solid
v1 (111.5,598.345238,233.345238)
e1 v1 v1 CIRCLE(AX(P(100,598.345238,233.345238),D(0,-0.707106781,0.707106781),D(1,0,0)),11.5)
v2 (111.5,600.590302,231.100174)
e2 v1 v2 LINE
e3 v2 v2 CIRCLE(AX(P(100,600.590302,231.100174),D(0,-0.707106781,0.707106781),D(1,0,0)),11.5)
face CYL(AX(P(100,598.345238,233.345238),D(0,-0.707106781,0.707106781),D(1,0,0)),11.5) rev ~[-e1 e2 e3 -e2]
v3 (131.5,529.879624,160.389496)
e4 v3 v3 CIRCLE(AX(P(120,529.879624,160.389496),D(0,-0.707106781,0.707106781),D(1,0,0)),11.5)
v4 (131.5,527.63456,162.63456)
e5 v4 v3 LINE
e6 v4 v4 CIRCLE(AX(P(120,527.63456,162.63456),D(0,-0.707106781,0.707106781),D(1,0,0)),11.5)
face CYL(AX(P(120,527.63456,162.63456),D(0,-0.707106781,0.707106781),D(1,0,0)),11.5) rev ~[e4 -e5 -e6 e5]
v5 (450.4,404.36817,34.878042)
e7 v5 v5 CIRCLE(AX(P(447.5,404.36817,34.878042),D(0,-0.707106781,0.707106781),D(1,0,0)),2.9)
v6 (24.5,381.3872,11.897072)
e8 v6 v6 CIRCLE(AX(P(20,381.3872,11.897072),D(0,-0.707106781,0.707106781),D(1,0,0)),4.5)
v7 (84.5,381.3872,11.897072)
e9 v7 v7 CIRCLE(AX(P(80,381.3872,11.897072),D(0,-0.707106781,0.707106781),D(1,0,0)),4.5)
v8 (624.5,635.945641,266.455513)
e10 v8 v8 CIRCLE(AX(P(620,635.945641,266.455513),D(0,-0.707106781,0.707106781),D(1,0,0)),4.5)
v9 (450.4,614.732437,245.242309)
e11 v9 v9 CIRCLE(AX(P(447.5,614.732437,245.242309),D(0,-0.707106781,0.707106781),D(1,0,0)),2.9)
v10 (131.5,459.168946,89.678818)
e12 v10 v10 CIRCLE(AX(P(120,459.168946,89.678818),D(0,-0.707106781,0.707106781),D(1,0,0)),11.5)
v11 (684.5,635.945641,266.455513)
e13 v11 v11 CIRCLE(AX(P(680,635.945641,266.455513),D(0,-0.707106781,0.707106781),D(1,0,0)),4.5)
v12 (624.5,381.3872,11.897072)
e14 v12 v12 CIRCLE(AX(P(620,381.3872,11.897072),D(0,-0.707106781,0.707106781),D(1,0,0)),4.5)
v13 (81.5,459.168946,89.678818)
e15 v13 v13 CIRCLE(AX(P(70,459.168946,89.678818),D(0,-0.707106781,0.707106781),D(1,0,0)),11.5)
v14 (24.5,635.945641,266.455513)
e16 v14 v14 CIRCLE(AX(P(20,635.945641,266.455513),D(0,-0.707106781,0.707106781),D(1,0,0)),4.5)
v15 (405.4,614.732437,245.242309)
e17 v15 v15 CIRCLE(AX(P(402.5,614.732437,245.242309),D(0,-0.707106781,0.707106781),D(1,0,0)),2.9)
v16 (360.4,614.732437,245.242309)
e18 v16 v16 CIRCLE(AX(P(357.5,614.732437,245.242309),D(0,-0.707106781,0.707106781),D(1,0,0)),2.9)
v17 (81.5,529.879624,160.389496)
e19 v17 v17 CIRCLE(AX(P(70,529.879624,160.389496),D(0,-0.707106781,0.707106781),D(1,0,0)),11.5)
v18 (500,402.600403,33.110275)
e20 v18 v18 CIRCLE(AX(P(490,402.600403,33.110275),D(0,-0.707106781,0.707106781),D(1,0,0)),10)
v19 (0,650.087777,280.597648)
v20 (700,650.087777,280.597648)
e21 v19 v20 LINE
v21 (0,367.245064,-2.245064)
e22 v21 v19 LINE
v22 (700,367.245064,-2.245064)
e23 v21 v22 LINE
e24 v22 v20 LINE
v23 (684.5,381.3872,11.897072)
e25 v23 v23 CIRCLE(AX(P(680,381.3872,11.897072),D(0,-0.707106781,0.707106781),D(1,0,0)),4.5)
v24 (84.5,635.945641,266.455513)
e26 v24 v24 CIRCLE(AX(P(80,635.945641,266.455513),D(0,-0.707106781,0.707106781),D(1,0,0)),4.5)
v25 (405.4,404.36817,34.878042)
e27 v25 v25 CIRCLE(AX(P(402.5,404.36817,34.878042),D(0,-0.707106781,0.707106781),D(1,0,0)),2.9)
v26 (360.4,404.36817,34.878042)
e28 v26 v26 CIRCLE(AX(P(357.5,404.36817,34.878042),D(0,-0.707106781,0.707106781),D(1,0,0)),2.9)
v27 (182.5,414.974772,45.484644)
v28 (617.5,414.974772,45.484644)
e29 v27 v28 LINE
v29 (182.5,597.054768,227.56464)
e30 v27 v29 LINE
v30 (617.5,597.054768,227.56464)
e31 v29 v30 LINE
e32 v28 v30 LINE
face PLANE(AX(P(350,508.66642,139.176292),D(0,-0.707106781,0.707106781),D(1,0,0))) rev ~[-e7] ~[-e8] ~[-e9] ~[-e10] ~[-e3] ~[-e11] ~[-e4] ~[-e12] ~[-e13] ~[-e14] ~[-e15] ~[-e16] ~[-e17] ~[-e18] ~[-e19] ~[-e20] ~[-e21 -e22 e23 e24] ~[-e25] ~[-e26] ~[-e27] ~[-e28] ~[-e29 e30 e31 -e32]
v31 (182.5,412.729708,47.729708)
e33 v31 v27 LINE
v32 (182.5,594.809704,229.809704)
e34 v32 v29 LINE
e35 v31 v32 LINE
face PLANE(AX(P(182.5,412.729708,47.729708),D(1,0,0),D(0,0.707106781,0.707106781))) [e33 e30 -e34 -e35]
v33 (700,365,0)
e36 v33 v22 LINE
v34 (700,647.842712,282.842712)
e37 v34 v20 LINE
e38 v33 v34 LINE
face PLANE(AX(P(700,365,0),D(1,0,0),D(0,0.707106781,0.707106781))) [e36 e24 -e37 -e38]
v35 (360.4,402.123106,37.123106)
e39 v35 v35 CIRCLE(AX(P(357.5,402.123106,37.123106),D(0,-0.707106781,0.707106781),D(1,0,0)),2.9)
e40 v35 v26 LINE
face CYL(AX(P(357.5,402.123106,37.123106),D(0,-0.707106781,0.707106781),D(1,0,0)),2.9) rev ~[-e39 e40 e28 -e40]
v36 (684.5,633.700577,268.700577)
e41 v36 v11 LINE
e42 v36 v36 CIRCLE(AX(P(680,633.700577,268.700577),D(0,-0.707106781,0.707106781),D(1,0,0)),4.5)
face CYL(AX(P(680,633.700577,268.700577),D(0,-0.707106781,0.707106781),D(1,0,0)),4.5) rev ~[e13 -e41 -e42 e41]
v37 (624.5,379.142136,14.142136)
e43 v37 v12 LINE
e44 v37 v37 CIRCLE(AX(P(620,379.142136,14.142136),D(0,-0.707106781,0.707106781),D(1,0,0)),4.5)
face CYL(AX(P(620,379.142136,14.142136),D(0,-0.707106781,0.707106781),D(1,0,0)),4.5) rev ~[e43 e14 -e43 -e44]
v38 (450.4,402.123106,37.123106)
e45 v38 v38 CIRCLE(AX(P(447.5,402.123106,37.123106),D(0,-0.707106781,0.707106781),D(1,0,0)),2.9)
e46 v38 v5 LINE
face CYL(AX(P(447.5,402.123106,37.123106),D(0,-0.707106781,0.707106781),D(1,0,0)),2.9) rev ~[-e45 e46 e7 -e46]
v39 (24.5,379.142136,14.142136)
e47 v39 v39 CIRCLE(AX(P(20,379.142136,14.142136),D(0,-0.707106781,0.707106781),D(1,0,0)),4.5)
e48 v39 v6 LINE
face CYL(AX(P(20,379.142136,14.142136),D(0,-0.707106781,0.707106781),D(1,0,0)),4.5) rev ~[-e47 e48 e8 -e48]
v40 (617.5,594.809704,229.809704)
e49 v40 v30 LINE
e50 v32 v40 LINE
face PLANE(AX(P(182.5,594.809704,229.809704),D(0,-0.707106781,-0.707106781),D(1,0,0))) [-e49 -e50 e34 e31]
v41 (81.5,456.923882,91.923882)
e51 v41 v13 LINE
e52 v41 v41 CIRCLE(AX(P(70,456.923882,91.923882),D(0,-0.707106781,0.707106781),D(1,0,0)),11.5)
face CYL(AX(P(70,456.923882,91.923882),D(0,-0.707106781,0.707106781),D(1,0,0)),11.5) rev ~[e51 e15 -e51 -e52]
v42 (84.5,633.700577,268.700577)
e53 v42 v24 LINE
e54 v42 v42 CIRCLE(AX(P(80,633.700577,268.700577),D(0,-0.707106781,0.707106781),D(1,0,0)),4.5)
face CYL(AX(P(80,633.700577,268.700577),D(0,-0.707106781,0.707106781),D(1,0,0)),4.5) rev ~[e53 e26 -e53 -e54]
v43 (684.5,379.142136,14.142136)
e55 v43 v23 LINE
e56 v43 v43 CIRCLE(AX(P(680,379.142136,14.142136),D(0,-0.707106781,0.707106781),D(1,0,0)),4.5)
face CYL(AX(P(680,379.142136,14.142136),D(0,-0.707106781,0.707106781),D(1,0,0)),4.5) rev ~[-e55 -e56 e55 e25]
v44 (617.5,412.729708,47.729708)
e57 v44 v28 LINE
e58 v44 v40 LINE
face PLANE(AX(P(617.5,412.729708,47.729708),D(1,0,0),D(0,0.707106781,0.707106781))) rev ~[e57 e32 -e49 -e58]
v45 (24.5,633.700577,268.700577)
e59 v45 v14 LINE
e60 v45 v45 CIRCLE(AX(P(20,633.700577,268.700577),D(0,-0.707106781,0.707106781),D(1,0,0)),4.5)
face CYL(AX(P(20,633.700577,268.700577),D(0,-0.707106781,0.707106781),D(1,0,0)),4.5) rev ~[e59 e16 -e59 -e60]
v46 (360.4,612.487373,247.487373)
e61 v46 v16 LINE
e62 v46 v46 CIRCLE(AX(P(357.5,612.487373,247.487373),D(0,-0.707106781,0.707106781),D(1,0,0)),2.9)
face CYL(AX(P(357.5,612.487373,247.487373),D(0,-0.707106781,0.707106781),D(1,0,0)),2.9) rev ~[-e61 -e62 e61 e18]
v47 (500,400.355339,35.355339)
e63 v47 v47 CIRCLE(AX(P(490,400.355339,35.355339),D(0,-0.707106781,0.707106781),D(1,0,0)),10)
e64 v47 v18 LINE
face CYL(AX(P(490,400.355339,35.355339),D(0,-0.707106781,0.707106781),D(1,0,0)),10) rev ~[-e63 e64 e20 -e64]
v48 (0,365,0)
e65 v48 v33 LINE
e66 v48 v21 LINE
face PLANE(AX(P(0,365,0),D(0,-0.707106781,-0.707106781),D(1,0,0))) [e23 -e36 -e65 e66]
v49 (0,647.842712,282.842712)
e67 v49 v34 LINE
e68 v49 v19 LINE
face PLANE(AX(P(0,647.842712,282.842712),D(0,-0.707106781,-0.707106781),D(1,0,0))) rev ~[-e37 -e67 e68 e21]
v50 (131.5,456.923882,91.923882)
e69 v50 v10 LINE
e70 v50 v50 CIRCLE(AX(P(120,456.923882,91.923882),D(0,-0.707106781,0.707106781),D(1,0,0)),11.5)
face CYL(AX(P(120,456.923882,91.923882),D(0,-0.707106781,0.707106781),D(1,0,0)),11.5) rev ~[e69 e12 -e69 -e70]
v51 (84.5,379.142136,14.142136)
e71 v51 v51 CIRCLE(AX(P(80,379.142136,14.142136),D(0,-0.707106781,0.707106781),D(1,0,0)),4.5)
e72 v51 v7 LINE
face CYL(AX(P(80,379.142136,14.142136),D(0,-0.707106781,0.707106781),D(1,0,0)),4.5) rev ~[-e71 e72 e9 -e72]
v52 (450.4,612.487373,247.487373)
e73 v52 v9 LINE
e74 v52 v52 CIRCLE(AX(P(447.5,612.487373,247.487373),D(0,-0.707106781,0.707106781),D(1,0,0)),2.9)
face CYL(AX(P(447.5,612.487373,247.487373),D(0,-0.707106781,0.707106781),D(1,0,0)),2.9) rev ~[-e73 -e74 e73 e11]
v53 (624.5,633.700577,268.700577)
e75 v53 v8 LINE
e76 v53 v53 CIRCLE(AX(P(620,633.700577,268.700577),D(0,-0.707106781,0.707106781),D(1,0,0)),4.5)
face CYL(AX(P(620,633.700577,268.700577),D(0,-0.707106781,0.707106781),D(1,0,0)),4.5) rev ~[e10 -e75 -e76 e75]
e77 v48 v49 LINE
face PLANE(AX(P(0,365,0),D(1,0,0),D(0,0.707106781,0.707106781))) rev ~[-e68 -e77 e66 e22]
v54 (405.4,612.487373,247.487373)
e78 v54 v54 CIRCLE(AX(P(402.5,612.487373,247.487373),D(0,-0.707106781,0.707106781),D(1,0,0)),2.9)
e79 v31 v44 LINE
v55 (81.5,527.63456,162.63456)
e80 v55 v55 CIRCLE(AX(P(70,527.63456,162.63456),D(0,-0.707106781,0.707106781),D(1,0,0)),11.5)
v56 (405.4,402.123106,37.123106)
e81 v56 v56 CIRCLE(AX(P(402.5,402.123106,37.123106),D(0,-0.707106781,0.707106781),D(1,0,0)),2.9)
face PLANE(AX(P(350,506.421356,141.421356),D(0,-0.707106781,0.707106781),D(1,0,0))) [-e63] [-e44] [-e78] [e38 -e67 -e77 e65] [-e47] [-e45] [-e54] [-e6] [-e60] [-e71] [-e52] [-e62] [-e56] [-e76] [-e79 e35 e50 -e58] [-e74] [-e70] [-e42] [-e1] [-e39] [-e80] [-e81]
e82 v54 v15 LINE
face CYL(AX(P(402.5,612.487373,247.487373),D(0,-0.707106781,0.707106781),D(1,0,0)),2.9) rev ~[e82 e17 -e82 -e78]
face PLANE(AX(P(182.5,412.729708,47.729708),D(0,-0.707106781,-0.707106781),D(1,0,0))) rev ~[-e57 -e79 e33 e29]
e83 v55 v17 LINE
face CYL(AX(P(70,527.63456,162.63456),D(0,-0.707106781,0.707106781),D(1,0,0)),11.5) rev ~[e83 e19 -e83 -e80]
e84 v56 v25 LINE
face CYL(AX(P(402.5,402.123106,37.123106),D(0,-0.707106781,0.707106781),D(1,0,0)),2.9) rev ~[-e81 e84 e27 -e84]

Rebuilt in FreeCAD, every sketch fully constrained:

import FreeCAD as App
import Part
import Sketcher

V = App.Vector
Q = App.Units.Quantity


def add_polygon(sketch, points):
    """Adds a closed chain of lines whose ends are joined by coincident constraints."""
    first, n = sketch.GeometryCount, len(points)
    for a, b in zip(points, points[1:] + points[:1]):
        sketch.addGeometry(Part.LineSegment(App.Vector(*a, 0), App.Vector(*b, 0)), False)
    for i in range(n):
        sketch.addConstraint(Sketcher.Constraint("Coincident", first + i, 2, first + (i + 1) % n, 1))

doc = App.newDocument("Part")
body = doc.addObject("PartDesign::Body", "Body")

# Sketch on XY plane
sketch1 = body.newObject("Sketcher::SketchObject", "Sketch")
sketch1.AttachmentSupport = (doc.getObject("XY_Plane"), [""])
sketch1.MapMode = "FlatFace"
add_polygon(sketch1, [(0, 400), (0, 0), (700, 0), (700, 400)])  # lines 0-3
sketch1.addGeometry(Part.Circle(V(70, 130, 0), V(0, 0, 1), 12), False)  # 4
sketch1.addGeometry(Part.Circle(V(120, 130, 0), V(0, 0, 1), 12), False)  # 5
sketch1.addGeometry(Part.Circle(V(490, 50, 0), V(0, 0, 1), 10), False)  # 6
sketch1.addGeometry(Part.Circle(V(70, 230, 0), V(0, 0, 1), 12), False)  # 7
sketch1.addGeometry(Part.Circle(V(120, 230, 0), V(0, 0, 1), 12), False)  # 8
sketch1.addGeometry(Part.Circle(V(100, 330, 0), V(0, 0, 1), 12), False)  # 9
add_polygon(sketch1, [(618, 68), (182, 68), (182, 325), (618, 325)])  # lines 10-13
sketch1.addConstraint([
    Sketcher.Constraint("Vertical", 0),
    Sketcher.Constraint("Horizontal", 1),
    Sketcher.Constraint("Vertical", 2),
    Sketcher.Constraint("Horizontal", 3),
    Sketcher.Constraint("Horizontal", 10),
    Sketcher.Constraint("Vertical", 11),
    Sketcher.Constraint("Horizontal", 12),
    Sketcher.Constraint("Vertical", 13),
    Sketcher.Constraint("Coincident", 0, 2, -1, 1),
    Sketcher.Constraint("Equal", 4, 5),
    Sketcher.Constraint("Equal", 5, 7),
    Sketcher.Constraint("Equal", 7, 8),
    Sketcher.Constraint("Equal", 8, 9),
    Sketcher.Constraint("Horizontal", 4, 3, 5, 3),
    Sketcher.Constraint("Horizontal", 7, 3, 8, 3),
    Sketcher.Constraint("Vertical", 4, 3, 7, 3),
    Sketcher.Constraint("Vertical", 5, 3, 8, 3),
    Sketcher.Constraint("Diameter", 4, Q("23 mm")),
    Sketcher.Constraint("Diameter", 6, Q("20 mm")),
    Sketcher.Constraint("DistanceX", 1, 1, 1, 2, Q("700 mm")),
    Sketcher.Constraint("DistanceX", 10, 2, 10, 1, Q("435 mm")),
    Sketcher.Constraint("DistanceY", 0, 2, 0, 1, Q("400 mm")),
    Sketcher.Constraint("DistanceY", 11, 1, 11, 2, Q("257.5 mm")),
    Sketcher.Constraint("DistanceX", -1, 1, 4, 3, Q("70 mm")),
    Sketcher.Constraint("DistanceY", -1, 1, 4, 3, Q("130 mm")),
    Sketcher.Constraint("DistanceX", -1, 1, 5, 3, Q("120 mm")),
    Sketcher.Constraint("DistanceX", -1, 1, 6, 3, Q("490 mm")),
    Sketcher.Constraint("DistanceY", -1, 1, 6, 3, Q("50 mm")),
    Sketcher.Constraint("DistanceY", -1, 1, 7, 3, Q("230 mm")),
    Sketcher.Constraint("DistanceX", -1, 1, 9, 3, Q("100 mm")),
    Sketcher.Constraint("DistanceY", -1, 1, 9, 3, Q("330 mm")),
    Sketcher.Constraint("DistanceY", -1, 1, 11, 2, Q("325 mm")),
    Sketcher.Constraint("DistanceX", -1, 1, 10, 2, Q("182.5 mm")),
])
pad1 = body.newObject("PartDesign::Pad", "Pad")
pad1.Profile = sketch1
pad1.Length = 3.175
pad1.Reversed = True

# Sketch on XY plane
sketch2 = body.newObject("Sketcher::SketchObject", "Sketch001")
sketch2.AttachmentSupport = (doc.getObject("XY_Plane"), [""])
sketch2.MapMode = "FlatFace"
sketch2.addGeometry([
    Part.Circle(V(357.5, 350, 0), V(0, 0, 1), 2.9),  # 0
    Part.Circle(V(402.5, 350, 0), V(0, 0, 1), 2.9),  # 1
    Part.Circle(V(447.5, 350, 0), V(0, 0, 1), 2.9),  # 2
    Part.Circle(V(357.5, 52.5, 0), V(0, 0, 1), 2.9),  # 3
    Part.Circle(V(402.5, 52.5, 0), V(0, 0, 1), 2.9),  # 4
    Part.Circle(V(447.5, 52.5, 0), V(0, 0, 1), 2.9),  # 5
], False)
sketch2.addConstraint([
    Sketcher.Constraint("Equal", 0, 1),
    Sketcher.Constraint("Equal", 1, 2),
    Sketcher.Constraint("Equal", 2, 3),
    Sketcher.Constraint("Equal", 3, 4),
    Sketcher.Constraint("Equal", 4, 5),
    Sketcher.Constraint("Horizontal", 0, 3, 1, 3),
    Sketcher.Constraint("Horizontal", 1, 3, 2, 3),
    Sketcher.Constraint("Horizontal", 3, 3, 4, 3),
    Sketcher.Constraint("Horizontal", 4, 3, 5, 3),
    Sketcher.Constraint("Vertical", 0, 3, 3, 3),
    Sketcher.Constraint("Vertical", 1, 3, 4, 3),
    Sketcher.Constraint("Vertical", 2, 3, 5, 3),
    Sketcher.Constraint("Diameter", 0, Q("5.8 mm")),
    Sketcher.Constraint("DistanceY", -1, 1, 0, 3, Q("350 mm")),
    Sketcher.Constraint("DistanceX", 0, 3, 1, 3, Q("45 mm")),
    Sketcher.Constraint("DistanceX", 1, 3, 2, 3, Q("45 mm")),
    Sketcher.Constraint("DistanceX", -1, 1, 0, 3, Q("357.5 mm")),
    Sketcher.Constraint("DistanceY", -1, 1, 3, 3, Q("52.5 mm")),
])
pocket1 = body.newObject("PartDesign::Pocket", "Pocket")
pocket1.Profile = sketch2
pocket1.Length = 25

# Sketch on XY plane
sketch3 = body.newObject("Sketcher::SketchObject", "Sketch002")
sketch3.AttachmentSupport = (doc.getObject("XY_Plane"), [""])
sketch3.MapMode = "FlatFace"
sketch3.addGeometry([
    Part.Circle(V(20, 20, 0), V(0, 0, 1), 4.5),  # 0
    Part.Circle(V(680, 20, 0), V(0, 0, 1), 4.5),  # 1
    Part.Circle(V(680, 380, 0), V(0, 0, 1), 4.5),  # 2
    Part.Circle(V(20, 380, 0), V(0, 0, 1), 4.5),  # 3
    Part.Circle(V(80, 20, 0), V(0, 0, 1), 4.5),  # 4
    Part.Circle(V(80, 380, 0), V(0, 0, 1), 4.5),  # 5
    Part.Circle(V(620, 20, 0), V(0, 0, 1), 4.5),  # 6
    Part.Circle(V(620, 380, 0), V(0, 0, 1), 4.5),  # 7
], False)
sketch3.addConstraint([
    Sketcher.Constraint("Equal", 0, 1),
    Sketcher.Constraint("Equal", 1, 2),
    Sketcher.Constraint("Equal", 2, 3),
    Sketcher.Constraint("Equal", 3, 4),
    Sketcher.Constraint("Equal", 4, 5),
    Sketcher.Constraint("Equal", 5, 6),
    Sketcher.Constraint("Equal", 6, 7),
    Sketcher.Constraint("Horizontal", 0, 3, 1, 3),
    Sketcher.Constraint("Horizontal", 2, 3, 3, 3),
    Sketcher.Constraint("Horizontal", 1, 3, 4, 3),
    Sketcher.Constraint("Horizontal", 3, 3, 5, 3),
    Sketcher.Constraint("Horizontal", 4, 3, 6, 3),
    Sketcher.Constraint("Horizontal", 5, 3, 7, 3),
    Sketcher.Constraint("Vertical", 1, 3, 2, 3),
    Sketcher.Constraint("Vertical", 0, 3, 3, 3),
    Sketcher.Constraint("Vertical", 4, 3, 5, 3),
    Sketcher.Constraint("Vertical", 6, 3, 7, 3),
    Sketcher.Constraint("Diameter", 0, Q("9 mm")),
    Sketcher.Constraint("DistanceX", -1, 1, 0, 3, Q("20 mm")),
    Sketcher.Constraint("DistanceY", -1, 1, 0, 3, Q("20 mm")),
    Sketcher.Constraint("DistanceX", -1, 1, 1, 3, Q("680 mm")),
    Sketcher.Constraint("DistanceY", -1, 1, 2, 3, Q("380 mm")),
    Sketcher.Constraint("DistanceX", -1, 1, 4, 3, Q("80 mm")),
    Sketcher.Constraint("DistanceX", -1, 1, 6, 3, Q("620 mm")),
])
pocket2 = body.newObject("PartDesign::Pocket", "Pocket001")
pocket2.Profile = sketch3
pocket2.Length = 25
body2 = doc.addObject("PartDesign::Body", "Body001")
doc.recompute()

body.Placement = App.Placement(V(0, 365, 0), App.Rotation(V(-1, 0, 0), 315))
boolean = body2.newObject("PartDesign::Boolean", "Boolean")
boolean.Type = "Fuse"
boolean.addObjects([body])

doc.recompute()
